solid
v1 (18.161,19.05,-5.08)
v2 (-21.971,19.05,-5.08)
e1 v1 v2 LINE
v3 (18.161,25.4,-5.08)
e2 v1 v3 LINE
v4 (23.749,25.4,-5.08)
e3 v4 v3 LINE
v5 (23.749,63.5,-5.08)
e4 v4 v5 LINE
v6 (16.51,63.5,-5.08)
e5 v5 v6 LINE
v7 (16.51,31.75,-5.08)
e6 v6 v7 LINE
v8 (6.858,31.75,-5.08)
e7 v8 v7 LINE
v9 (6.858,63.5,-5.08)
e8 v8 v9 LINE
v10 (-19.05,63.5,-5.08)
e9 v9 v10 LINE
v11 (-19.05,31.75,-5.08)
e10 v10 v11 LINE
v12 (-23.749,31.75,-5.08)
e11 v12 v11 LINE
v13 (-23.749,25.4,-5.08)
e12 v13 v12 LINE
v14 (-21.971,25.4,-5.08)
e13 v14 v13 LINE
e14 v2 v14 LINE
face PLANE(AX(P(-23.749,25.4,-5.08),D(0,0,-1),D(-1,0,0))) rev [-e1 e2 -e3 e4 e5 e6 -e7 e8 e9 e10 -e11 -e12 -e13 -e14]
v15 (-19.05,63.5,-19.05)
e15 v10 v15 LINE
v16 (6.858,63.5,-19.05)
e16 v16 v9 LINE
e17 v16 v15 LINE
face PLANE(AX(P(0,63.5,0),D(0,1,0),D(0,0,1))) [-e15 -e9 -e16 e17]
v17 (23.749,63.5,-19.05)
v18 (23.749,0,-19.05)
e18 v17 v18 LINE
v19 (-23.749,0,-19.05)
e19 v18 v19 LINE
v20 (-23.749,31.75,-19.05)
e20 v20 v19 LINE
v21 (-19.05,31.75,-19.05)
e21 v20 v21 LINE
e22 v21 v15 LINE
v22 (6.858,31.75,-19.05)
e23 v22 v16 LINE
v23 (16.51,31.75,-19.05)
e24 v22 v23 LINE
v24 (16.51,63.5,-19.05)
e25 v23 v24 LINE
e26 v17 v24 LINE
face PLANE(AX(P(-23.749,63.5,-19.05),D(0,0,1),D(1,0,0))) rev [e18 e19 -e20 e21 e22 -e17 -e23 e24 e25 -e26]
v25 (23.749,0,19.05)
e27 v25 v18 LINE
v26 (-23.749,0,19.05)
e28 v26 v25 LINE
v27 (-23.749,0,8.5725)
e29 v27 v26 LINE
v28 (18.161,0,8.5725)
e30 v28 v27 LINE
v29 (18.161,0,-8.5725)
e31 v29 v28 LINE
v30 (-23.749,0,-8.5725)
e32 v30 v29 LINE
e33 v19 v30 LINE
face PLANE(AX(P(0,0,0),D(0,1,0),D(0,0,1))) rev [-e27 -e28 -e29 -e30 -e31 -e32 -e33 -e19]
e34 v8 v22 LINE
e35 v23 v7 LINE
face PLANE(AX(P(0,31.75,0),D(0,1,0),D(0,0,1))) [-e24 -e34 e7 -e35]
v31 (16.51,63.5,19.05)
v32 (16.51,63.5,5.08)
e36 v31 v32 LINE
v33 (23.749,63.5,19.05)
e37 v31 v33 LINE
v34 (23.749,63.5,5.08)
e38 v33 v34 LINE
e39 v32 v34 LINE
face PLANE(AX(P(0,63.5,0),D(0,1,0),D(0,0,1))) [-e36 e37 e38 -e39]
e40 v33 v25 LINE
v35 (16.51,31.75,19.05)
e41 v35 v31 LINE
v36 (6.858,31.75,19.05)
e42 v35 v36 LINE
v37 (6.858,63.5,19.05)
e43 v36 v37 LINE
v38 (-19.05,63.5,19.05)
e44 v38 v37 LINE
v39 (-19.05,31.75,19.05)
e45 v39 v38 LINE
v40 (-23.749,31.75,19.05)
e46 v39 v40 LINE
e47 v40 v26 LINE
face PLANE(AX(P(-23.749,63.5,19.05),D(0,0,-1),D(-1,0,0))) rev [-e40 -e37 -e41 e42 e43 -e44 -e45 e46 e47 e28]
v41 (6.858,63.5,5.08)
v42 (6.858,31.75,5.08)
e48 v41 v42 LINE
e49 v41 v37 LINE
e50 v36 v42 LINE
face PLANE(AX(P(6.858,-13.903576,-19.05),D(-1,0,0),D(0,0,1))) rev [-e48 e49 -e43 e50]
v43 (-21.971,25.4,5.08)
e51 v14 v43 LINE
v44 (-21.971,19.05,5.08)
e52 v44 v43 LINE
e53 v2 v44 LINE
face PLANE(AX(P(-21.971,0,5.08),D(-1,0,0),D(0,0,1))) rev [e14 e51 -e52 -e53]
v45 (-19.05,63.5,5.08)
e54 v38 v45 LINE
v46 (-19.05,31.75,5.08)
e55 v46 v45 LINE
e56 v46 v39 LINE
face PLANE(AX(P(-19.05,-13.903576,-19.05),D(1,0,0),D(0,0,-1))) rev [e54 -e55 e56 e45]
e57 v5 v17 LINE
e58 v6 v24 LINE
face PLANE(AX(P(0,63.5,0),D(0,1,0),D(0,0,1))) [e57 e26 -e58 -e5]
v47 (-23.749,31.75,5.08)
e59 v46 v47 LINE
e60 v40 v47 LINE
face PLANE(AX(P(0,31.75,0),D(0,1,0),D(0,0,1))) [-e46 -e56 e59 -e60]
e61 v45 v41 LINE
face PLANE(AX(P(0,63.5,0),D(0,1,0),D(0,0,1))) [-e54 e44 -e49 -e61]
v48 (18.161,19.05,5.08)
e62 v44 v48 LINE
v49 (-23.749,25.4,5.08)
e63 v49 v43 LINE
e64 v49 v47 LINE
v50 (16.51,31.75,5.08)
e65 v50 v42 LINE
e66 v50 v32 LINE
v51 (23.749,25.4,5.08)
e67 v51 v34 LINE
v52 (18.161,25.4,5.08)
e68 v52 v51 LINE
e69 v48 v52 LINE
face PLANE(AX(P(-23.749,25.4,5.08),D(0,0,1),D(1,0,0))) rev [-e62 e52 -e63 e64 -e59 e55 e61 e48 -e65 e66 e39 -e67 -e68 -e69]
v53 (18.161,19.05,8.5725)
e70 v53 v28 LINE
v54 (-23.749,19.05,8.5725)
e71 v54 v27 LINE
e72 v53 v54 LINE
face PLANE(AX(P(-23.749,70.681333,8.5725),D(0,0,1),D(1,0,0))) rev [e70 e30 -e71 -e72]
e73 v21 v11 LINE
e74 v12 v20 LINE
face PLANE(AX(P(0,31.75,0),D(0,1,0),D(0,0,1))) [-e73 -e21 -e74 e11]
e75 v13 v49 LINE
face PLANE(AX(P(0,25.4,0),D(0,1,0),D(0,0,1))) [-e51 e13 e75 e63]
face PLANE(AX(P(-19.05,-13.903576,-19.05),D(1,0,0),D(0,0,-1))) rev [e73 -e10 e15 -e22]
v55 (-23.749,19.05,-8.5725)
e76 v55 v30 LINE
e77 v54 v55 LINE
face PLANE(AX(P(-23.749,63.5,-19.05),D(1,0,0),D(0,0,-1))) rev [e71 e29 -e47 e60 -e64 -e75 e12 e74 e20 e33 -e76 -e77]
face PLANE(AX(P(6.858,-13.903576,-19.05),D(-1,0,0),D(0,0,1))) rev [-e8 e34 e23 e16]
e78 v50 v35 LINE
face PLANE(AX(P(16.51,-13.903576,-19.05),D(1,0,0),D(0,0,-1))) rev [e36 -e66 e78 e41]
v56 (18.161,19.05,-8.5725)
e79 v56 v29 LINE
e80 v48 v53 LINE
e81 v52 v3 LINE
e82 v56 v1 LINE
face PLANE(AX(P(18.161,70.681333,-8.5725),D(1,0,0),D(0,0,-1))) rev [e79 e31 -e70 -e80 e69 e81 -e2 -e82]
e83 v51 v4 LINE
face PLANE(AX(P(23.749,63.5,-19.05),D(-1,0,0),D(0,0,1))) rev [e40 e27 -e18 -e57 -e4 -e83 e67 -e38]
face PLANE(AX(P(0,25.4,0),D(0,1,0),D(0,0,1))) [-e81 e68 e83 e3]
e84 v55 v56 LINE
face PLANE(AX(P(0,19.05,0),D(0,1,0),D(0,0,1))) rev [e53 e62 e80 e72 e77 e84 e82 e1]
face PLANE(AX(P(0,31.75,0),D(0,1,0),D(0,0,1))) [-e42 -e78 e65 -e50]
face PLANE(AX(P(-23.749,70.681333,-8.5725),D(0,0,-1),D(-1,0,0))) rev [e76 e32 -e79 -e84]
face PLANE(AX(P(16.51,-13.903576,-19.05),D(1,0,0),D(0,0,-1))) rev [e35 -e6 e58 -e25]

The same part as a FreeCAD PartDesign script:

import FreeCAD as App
import Part
import Sketcher
from FreeCAD import Vector
Q = App.Units.Quantity


def add_polygon(sketch, points):
    """Adds a closed chain of lines whose ends are joined by coincident constraints."""
    first, n = sketch.GeometryCount, len(points)
    for a, b in zip(points, points[1:] + points[:1]):
        sketch.addGeometry(Part.LineSegment(App.Vector(*a, 0), App.Vector(*b, 0)), False)
    for i in range(n):
        sketch.addConstraint(Sketcher.Constraint("Coincident", first + i, 2, first + (i + 1) % n, 1))

doc = App.newDocument("Part")
body = doc.addObject("PartDesign::Body", "Body")

# Sketch on XZ plane
sketch1 = body.newObject("Sketcher::SketchObject", "Sketch")
sketch1.AttachmentSupport = (doc.getObject("XZ_Plane"), [""])
sketch1.MapMode = "FlatFace"
add_polygon(sketch1, [(-24, -19), (-24, 19), (24, 19), (24, -19)])  # lines 0-3
sketch1.addConstraint(Sketcher.Constraint("Vertical", 0))
sketch1.addConstraint(Sketcher.Constraint("Horizontal", 1))
sketch1.addConstraint(Sketcher.Constraint("Vertical", 2))
sketch1.addConstraint(Sketcher.Constraint("Horizontal", 3))
sketch1.addConstraint(Sketcher.Constraint("Symmetric", 0, 2, 2, 2, -1, 1))
sketch1.addConstraint(Sketcher.Constraint("DistanceY", 0, 1, 0, 2, Q("1.5 in")))
sketch1.addConstraint(Sketcher.Constraint("DistanceX", 1, 1, 1, 2, Q("1.87 in")))
pad1 = body.newObject("PartDesign::Pad", "Pad")
pad1.Profile = sketch1
pad1.Length = Q("2.5 in")
pad1.Reversed = True

# Sketch on XZ plane
sketch2 = body.newObject("Sketcher::SketchObject", "Sketch001")
sketch2.AttachmentSupport = (doc.getObject("XZ_Plane"), [""])
sketch2.MapMode = "FlatFace"
sketch2.AttachmentOffset = App.Placement(Vector(0, 0, -2.5 * 25.4), App.Rotation())
add_polygon(sketch2, [(-24, -5), (-24, 5), (24, 5), (24, -5)])  # lines 0-3
sketch2.addConstraint(Sketcher.Constraint("Vertical", 0))
sketch2.addConstraint(Sketcher.Constraint("Horizontal", 1))
sketch2.addConstraint(Sketcher.Constraint("Vertical", 2))
sketch2.addConstraint(Sketcher.Constraint("Horizontal", 3))
sketch2.addConstraint(Sketcher.Constraint("Symmetric", 0, 2, 2, 2, -1, 1))
sketch2.addConstraint(Sketcher.Constraint("DistanceY", 0, 1, 0, 2, Q("0.4 in")))
sketch2.addConstraint(Sketcher.Constraint("DistanceX", 1, 1, 1, 2, Q("1.87 in")))
pocket1 = body.newObject("PartDesign::Pocket", "Pocket")
pocket1.Profile = sketch2
pocket1.Length = Q("1.5 in")
pocket1.Reversed = True

# Sketch on XZ plane
sketch3 = body.newObject("Sketcher::SketchObject", "Sketch002")
sketch3.AttachmentSupport = (doc.getObject("XZ_Plane"), [""])
sketch3.MapMode = "FlatFace"
add_polygon(sketch3, [(-24, 9), (-24, -9), (18, -9), (18, 9)])  # lines 0-3
sketch3.addConstraint(Sketcher.Constraint("Vertical", 0))
sketch3.addConstraint(Sketcher.Constraint("Horizontal", 1))
sketch3.addConstraint(Sketcher.Constraint("Vertical", 2))
sketch3.addConstraint(Sketcher.Constraint("Horizontal", 3))
sketch3.addConstraint(Sketcher.Constraint("DistanceX", 1, 1, 1, 2, Q("1.65 in")))
sketch3.addConstraint(Sketcher.Constraint("DistanceY", 0, 2, 0, 1, Q("0.675 in")))
sketch3.addConstraint(Sketcher.Constraint("DistanceX", 0, 2, -1, 1, Q("0.935 in")))
sketch3.addConstraint(Sketcher.Constraint("DistanceY", 0, 2, -1, 1, Q("0.3375 in")))
pocket2 = body.newObject("PartDesign::Pocket", "Pocket001")
pocket2.Profile = sketch3
pocket2.Length = Q("0.75 in")

# Sketch on XZ plane
sketch4 = body.newObject("Sketcher::SketchObject", "Sketch003")
sketch4.AttachmentSupport = (doc.getObject("XZ_Plane"), [""])
sketch4.MapMode = "FlatFace"
sketch4.AttachmentOffset = App.Placement(Vector(0, 0, -1 * 25.4), App.Rotation())
add_polygon(sketch4, [(-22, -5), (-22, 5), (18, 5), (18, -5)])  # lines 0-3
sketch4.addConstraint(Sketcher.Constraint("Vertical", 0))
sketch4.addConstraint(Sketcher.Constraint("Horizontal", 1))
sketch4.addConstraint(Sketcher.Constraint("Vertical", 2))
sketch4.addConstraint(Sketcher.Constraint("Horizontal", 3))
sketch4.addConstraint(Sketcher.Constraint("DistanceY", 0, 1, 0, 2, Q("0.4 in")))
sketch4.addConstraint(Sketcher.Constraint("DistanceX", 1, 1, 1, 2, Q("1.58 in")))
sketch4.addConstraint(Sketcher.Constraint("DistanceY", -1, 1, 0, 2, Q("0.2 in")))
sketch4.addConstraint(Sketcher.Constraint("DistanceX", 0, 2, -1, 1, Q("0.865 in")))
pocket3 = body.newObject("PartDesign::Pocket", "Pocket002")
pocket3.Profile = sketch4
pocket3.Type = "ThroughAll"
pocket3.Reversed = True

# Sketch on XZ plane
sketch5 = body.newObject("Sketcher::SketchObject", "Sketch004")
sketch5.AttachmentSupport = (doc.getObject("XZ_Plane"), [""])
sketch5.MapMode = "FlatFace"
sketch5.AttachmentOffset = App.Placement(Vector(0, 0, -2.5 * 25.4), App.Rotation())
add_polygon(sketch5, [(6.9, -19.1), (6.9, 19.1), (16.5, 19.1), (16.5, -19.1)])  # lines 0-3
add_polygon(sketch5, [(-23.7, -19.1), (-23.7, 19.1), (-19.1, 19.1), (-19.1, -19.1)])  # lines 4-7
sketch5.addConstraint(Sketcher.Constraint("Vertical", 0))
sketch5.addConstraint(Sketcher.Constraint("Horizontal", 1))
sketch5.addConstraint(Sketcher.Constraint("Vertical", 2))
sketch5.addConstraint(Sketcher.Constraint("Horizontal", 3))
sketch5.addConstraint(Sketcher.Constraint("Vertical", 4))
sketch5.addConstraint(Sketcher.Constraint("Horizontal", 5))
sketch5.addConstraint(Sketcher.Constraint("Vertical", 6))
sketch5.addConstraint(Sketcher.Constraint("Horizontal", 7))
sketch5.addConstraint(Sketcher.Constraint("Horizontal", 1, 2, 4, 2))
sketch5.addConstraint(Sketcher.Constraint("Horizontal", 3, 2, 6, 2))
sketch5.addConstraint(Sketcher.Constraint("DistanceY", 0, 1, 0, 2, Q("1.5 in")))
sketch5.addConstraint(Sketcher.Constraint("DistanceX", 1, 1, 1, 2, Q("0.38 in")))
sketch5.addConstraint(Sketcher.Constraint("DistanceX", 5, 2, 1, 2, Q("1.4 in")))
sketch5.addConstraint(Sketcher.Constraint("DistanceX", 5, 1, 5, 2, Q("0.185 in")))
sketch5.addConstraint(Sketcher.Constraint("DistanceX", -1, 1, 0, 2, Q("0.27 in")))
sketch5.addConstraint(Sketcher.Constraint("DistanceY", -1, 1, 0, 2, Q("0.75 in")))
pocket4 = body.newObject("PartDesign::Pocket", "Pocket003")
pocket4.Profile = sketch5
pocket4.Length = Q("1.25 in")
pocket4.Reversed = True

doc.recompute()
